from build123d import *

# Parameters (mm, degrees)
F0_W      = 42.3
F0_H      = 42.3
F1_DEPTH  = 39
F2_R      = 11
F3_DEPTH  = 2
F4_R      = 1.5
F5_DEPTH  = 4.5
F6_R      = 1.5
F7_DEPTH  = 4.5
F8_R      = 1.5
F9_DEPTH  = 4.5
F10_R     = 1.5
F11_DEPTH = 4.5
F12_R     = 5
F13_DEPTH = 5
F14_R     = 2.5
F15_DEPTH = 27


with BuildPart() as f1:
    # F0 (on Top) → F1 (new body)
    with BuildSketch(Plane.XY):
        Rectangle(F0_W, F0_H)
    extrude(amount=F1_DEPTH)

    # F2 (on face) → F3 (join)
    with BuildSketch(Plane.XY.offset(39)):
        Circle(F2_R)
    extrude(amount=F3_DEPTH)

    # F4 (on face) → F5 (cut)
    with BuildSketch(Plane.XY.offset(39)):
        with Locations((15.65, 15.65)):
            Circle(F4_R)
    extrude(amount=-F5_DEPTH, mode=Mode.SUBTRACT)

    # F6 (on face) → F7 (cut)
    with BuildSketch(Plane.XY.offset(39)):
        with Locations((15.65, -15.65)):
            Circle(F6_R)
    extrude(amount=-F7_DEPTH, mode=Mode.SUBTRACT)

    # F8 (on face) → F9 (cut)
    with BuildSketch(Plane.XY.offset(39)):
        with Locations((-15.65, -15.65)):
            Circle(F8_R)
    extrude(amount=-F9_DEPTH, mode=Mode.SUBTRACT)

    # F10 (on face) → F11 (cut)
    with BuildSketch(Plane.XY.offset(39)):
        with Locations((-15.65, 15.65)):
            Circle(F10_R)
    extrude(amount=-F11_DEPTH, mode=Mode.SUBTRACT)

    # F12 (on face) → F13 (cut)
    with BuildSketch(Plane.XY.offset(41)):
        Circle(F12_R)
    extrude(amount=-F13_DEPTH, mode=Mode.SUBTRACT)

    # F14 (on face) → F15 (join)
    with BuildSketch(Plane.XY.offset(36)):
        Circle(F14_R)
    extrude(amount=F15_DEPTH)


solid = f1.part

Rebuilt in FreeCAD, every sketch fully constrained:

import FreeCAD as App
import Part
import Sketcher
Q = App.Units.Quantity

doc = App.newDocument("Part")
body = doc.addObject("PartDesign::Body", "Body")

# Sketch on XY plane
sketch1 = doc.addObject("Sketcher::SketchObject", "Sketch")
body.addObject(sketch1)
sketch1.AttachmentSupport = (doc.XY_Plane, [""])
sketch1.MapMode = "FlatFace"
sketch1.addGeometry(Part.LineSegment(App.Vector(-21, 21, 0), App.Vector(-21, -21, 0)), False)
sketch1.addGeometry(Part.LineSegment(App.Vector(-21, -21, 0), App.Vector(21, -21, 0)), False)
sketch1.addGeometry(Part.LineSegment(App.Vector(21, -21, 0), App.Vector(21, 21, 0)), False)
sketch1.addGeometry(Part.LineSegment(App.Vector(21, 21, 0), App.Vector(-21, 21, 0)), False)
sketch1.addConstraint(Sketcher.Constraint("Coincident", 0, 2, 1, 1))
sketch1.addConstraint(Sketcher.Constraint("Coincident", 1, 2, 2, 1))
sketch1.addConstraint(Sketcher.Constraint("Coincident", 2, 2, 3, 1))
sketch1.addConstraint(Sketcher.Constraint("Coincident", 3, 2, 0, 1))
sketch1.addConstraint(Sketcher.Constraint("Vertical", 0))
sketch1.addConstraint(Sketcher.Constraint("Horizontal", 1))
sketch1.addConstraint(Sketcher.Constraint("Vertical", 2))
sketch1.addConstraint(Sketcher.Constraint("Horizontal", 3))
sketch1.addConstraint(Sketcher.Constraint("Symmetric", 0, 2, 2, 2, -1, 1))
sketch1.addConstraint(Sketcher.Constraint("Equal", 3, 0))
sketch1.addConstraint(Sketcher.Constraint("DistanceX", 1, 1, 1, 2, Q("42.3 mm")))
pad1 = doc.addObject("PartDesign::Pad", "Pad")
body.addObject(pad1)
pad1.Profile = sketch1
pad1.Length = 39

# Sketch on XY plane
sketch2 = doc.addObject("Sketcher::SketchObject", "Sketch001")
body.addObject(sketch2)
sketch2.AttachmentSupport = (doc.XY_Plane, [""])
sketch2.MapMode = "FlatFace"
sketch2.AttachmentOffset = App.Placement(App.Vector(0, 0, 39), App.Rotation())
sketch2.addGeometry(Part.Circle(App.Vector(0, 0, 0), App.Vector(0, 0, 1), 11), False)
sketch2.addConstraint(Sketcher.Constraint("Coincident", 0, 3, -1, 1))
sketch2.addConstraint(Sketcher.Constraint("Diameter", 0, Q("22 mm")))
pad2 = doc.addObject("PartDesign::Pad", "Pad001")
body.addObject(pad2)
pad2.Profile = sketch2
pad2.Length = 2

# Sketch on XY plane
sketch3 = doc.addObject("Sketcher::SketchObject", "Sketch002")
body.addObject(sketch3)
sketch3.AttachmentSupport = (doc.XY_Plane, [""])
sketch3.MapMode = "FlatFace"
sketch3.AttachmentOffset = App.Placement(App.Vector(0, 0, 39), App.Rotation())
sketch3.addGeometry(Part.Circle(App.Vector(15.7, 15.7, 0), App.Vector(0, 0, 1), 1.5), False)
sketch3.addConstraint(Sketcher.Constraint("Diameter", 0, Q("3 mm")))
sketch3.addConstraint(Sketcher.Constraint("DistanceX", -1, 1, 0, 3, Q("15.65 mm")))
sketch3.addConstraint(Sketcher.Constraint("DistanceY", -1, 1, 0, 3, Q("15.65 mm")))
pocket1 = doc.addObject("PartDesign::Pocket", "Pocket")
body.addObject(pocket1)
pocket1.Profile = sketch3
pocket1.Length = 4.5

# Sketch on XY plane
sketch4 = doc.addObject("Sketcher::SketchObject", "Sketch003")
body.addObject(sketch4)
sketch4.AttachmentSupport = (doc.XY_Plane, [""])
sketch4.MapMode = "FlatFace"
sketch4.AttachmentOffset = App.Placement(App.Vector(0, 0, 39), App.Rotation())
sketch4.addGeometry(Part.Circle(App.Vector(15.7, -15.7, 0), App.Vector(0, 0, 1), 1.5), False)
sketch4.addConstraint(Sketcher.Constraint("Diameter", 0, Q("3 mm")))
sketch4.addConstraint(Sketcher.Constraint("DistanceX", -1, 1, 0, 3, Q("15.65 mm")))
sketch4.addConstraint(Sketcher.Constraint("DistanceY", 0, 3, -1, 1, Q("15.65 mm")))
pocket2 = doc.addObject("PartDesign::Pocket", "Pocket001")
body.addObject(pocket2)
pocket2.Profile = sketch4
pocket2.Length = 4.5

# Sketch on XY plane
sketch5 = doc.addObject("Sketcher::SketchObject", "Sketch004")
body.addObject(sketch5)
sketch5.AttachmentSupport = (doc.XY_Plane, [""])
sketch5.MapMode = "FlatFace"
sketch5.AttachmentOffset = App.Placement(App.Vector(0, 0, 39), App.Rotation())
sketch5.addGeometry(Part.Circle(App.Vector(-15.7, -15.7, 0), App.Vector(0, 0, 1), 1.5), False)
sketch5.addConstraint(Sketcher.Constraint("Diameter", 0, Q("3 mm")))
sketch5.addConstraint(Sketcher.Constraint("DistanceX", 0, 3, -1, 1, Q("15.65 mm")))
sketch5.addConstraint(Sketcher.Constraint("DistanceY", 0, 3, -1, 1, Q("15.65 mm")))
pocket3 = doc.addObject("PartDesign::Pocket", "Pocket002")
body.addObject(pocket3)
pocket3.Profile = sketch5
pocket3.Length = 4.5

# Sketch on XY plane
sketch6 = doc.addObject("Sketcher::SketchObject", "Sketch005")
body.addObject(sketch6)
sketch6.AttachmentSupport = (doc.XY_Plane, [""])
sketch6.MapMode = "FlatFace"
sketch6.AttachmentOffset = App.Placement(App.Vector(0, 0, 39), App.Rotation())
sketch6.addGeometry(Part.Circle(App.Vector(-15.7, 15.7, 0), App.Vector(0, 0, 1), 1.5), False)
sketch6.addConstraint(Sketcher.Constraint("Diameter", 0, Q("3 mm")))
sketch6.addConstraint(Sketcher.Constraint("DistanceX", 0, 3, -1, 1, Q("15.65 mm")))
sketch6.addConstraint(Sketcher.Constraint("DistanceY", -1, 1, 0, 3, Q("15.65 mm")))
pocket4 = doc.addObject("PartDesign::Pocket", "Pocket003")
body.addObject(pocket4)
pocket4.Profile = sketch6
pocket4.Length = 4.5

# Sketch on XY plane
sketch7 = doc.addObject("Sketcher::SketchObject", "Sketch006")
body.addObject(sketch7)
sketch7.AttachmentSupport = (doc.XY_Plane, [""])
sketch7.MapMode = "FlatFace"
sketch7.AttachmentOffset = App.Placement(App.Vector(0, 0, 41), App.Rotation())
sketch7.addGeometry(Part.Circle(App.Vector(0, 0, 0), App.Vector(0, 0, 1), 5), False)
sketch7.addConstraint(Sketcher.Constraint("Coincident", 0, 3, -1, 1))
sketch7.addConstraint(Sketcher.Constraint("Diameter", 0, Q("10 mm")))
pocket5 = doc.addObject("PartDesign::Pocket", "Pocket004")
body.addObject(pocket5)
pocket5.Profile = sketch7
pocket5.Length = 5

# Sketch on XY plane
sketch8 = doc.addObject("Sketcher::SketchObject", "Sketch007")
body.addObject(sketch8)
sketch8.AttachmentSupport = (doc.XY_Plane, [""])
sketch8.MapMode = "FlatFace"
sketch8.AttachmentOffset = App.Placement(App.Vector(0, 0, 36), App.Rotation())
sketch8.addGeometry(Part.Circle(App.Vector(0, 0, 0), App.Vector(0, 0, 1), 2.5), False)
sketch8.addConstraint(Sketcher.Constraint("Coincident", 0, 3, -1, 1))
sketch8.addConstraint(Sketcher.Constraint("Diameter", 0, Q("5 mm")))
pad3 = doc.addObject("PartDesign::Pad", "Pad002")
body.addObject(pad3)
pad3.Profile = sketch8
pad3.Length = 27

doc.recompute()
